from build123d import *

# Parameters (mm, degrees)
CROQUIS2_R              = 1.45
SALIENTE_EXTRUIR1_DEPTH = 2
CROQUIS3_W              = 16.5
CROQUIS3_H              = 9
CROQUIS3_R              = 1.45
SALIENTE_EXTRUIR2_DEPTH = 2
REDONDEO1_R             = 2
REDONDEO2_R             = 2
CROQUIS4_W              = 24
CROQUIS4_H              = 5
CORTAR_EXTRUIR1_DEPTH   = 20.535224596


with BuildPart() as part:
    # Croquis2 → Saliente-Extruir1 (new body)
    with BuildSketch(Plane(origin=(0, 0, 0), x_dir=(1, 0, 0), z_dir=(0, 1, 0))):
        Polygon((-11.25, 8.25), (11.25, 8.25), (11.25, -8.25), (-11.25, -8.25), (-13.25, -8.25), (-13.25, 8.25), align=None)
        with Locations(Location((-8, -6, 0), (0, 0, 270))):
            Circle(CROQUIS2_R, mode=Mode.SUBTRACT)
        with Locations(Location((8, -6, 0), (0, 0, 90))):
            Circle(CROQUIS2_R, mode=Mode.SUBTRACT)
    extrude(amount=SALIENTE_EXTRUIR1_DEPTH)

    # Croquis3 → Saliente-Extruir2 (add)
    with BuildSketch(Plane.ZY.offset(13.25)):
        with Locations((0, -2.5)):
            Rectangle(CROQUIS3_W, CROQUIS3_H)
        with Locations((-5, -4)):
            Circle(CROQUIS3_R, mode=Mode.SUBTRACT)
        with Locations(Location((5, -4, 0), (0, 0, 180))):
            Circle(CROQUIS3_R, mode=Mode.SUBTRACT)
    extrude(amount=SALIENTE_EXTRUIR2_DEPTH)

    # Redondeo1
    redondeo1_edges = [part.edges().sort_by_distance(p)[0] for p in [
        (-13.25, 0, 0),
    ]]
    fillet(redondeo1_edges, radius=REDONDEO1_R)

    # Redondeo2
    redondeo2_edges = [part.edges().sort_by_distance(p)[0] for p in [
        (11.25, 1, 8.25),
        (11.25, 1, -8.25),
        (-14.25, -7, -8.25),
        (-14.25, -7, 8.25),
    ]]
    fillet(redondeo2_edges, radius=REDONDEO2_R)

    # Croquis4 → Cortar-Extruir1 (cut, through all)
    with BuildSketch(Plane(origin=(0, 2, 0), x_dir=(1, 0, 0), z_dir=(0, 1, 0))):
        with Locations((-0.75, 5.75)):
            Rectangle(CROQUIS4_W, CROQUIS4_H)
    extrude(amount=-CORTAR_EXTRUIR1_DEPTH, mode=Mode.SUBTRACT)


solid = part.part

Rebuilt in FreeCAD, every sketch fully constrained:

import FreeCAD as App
import Part
import Sketcher

V = App.Vector


def edges_at(feature, points):
    """Names of the edges that pass closest to the given points."""
    edges = feature.Shape.Edges
    near = lambda p: min(range(len(edges)), key=lambda i: edges[i].distToShape(Part.Vertex(*p))[0])
    return sorted({f"Edge{near(p) + 1}" for p in points})


def add_polygon(sketch, points):
    """Adds a closed chain of lines whose ends are joined by coincident constraints."""
    first, n = sketch.GeometryCount, len(points)
    for a, b in zip(points, points[1:] + points[:1]):
        sketch.addGeometry(Part.LineSegment(App.Vector(*a, 0), App.Vector(*b, 0)), False)
    for i in range(n):
        sketch.addConstraint(Sketcher.Constraint("Coincident", first + i, 2, first + (i + 1) % n, 1))

doc = App.newDocument("Part")
body = doc.addObject("PartDesign::Body", "Body")

sketch1 = doc.addObject("Sketcher::SketchObject", "Sketch")
body.addObject(sketch1)
sketch1.AttachmentSupport = (doc.XZ_Plane, [""])
sketch1.MapMode = "FlatFace"
add_polygon(sketch1, [(11.2, -8.2), (-13.2, -8.2), (-13.2, 8.2), (11.2, 8.2)])
sketch1.addGeometry(Part.Circle(V(8, 6, 0), V(0, 0, 1), 1.4), False)
sketch1.addGeometry(Part.Circle(V(-8, 6, 0), V(0, 0, 1), 1.4), False)
sketch1.addConstraint([
    Sketcher.Constraint("Horizontal", 0),
    Sketcher.Constraint("Vertical", 1),
    Sketcher.Constraint("Horizontal", 2),
    Sketcher.Constraint("Vertical", 3),
    Sketcher.Constraint("Equal", 4, 5),
    Sketcher.Constraint("Symmetric", 4, 3, 5, 3, -2),
    Sketcher.Constraint("Diameter", 4, 2.9),
    Sketcher.Constraint("DistanceX", 0, 2, 0, 1, 24.5),
    Sketcher.Constraint("DistanceY", 1, 1, 1, 2, 16.5),
    Sketcher.Constraint("DistanceX", -1, 1, 4, 3, 8.0),
    Sketcher.Constraint("DistanceY", -1, 1, 4, 3, 6.0),
    Sketcher.Constraint("DistanceX", 0, 2, -1, 1, 13.25),
    Sketcher.Constraint("DistanceY", 0, 2, -1, 1, 8.25),
])
pad1 = doc.addObject("PartDesign::Pad", "Pad")
body.addObject(pad1)
pad1.Profile = sketch1
pad1.Length = 2
pad1.Reversed = True

sketch2 = doc.addObject("Sketcher::SketchObject", "Sketch001")
body.addObject(sketch2)
sketch2.AttachmentSupport = (doc.YZ_Plane, [""])
sketch2.MapMode = "FlatFace"
sketch2.AttachmentOffset = App.Placement(V(0, 0, -13.25), App.Rotation())
add_polygon(sketch2, [(2, -8.2), (-7, -8.2), (-7, 8.2), (2, 8.2)])
sketch2.addGeometry(Part.Circle(V(-4, -5, 0), V(0, 0, 1), 1.4), False)
sketch2.addGeometry(Part.Circle(V(-4, 5, 0), V(0, 0, 1), 1.4), False)
sketch2.addConstraint([
    Sketcher.Constraint("Horizontal", 0),
    Sketcher.Constraint("Vertical", 1),
    Sketcher.Constraint("Horizontal", 2),
    Sketcher.Constraint("Vertical", 3),
    Sketcher.Constraint("Equal", 4, 5),
    Sketcher.Constraint("Symmetric", 4, 3, 5, 3, -1),
    Sketcher.Constraint("Diameter", 4, 2.9),
    Sketcher.Constraint("DistanceX", 0, 2, 0, 1, 9.0),
    Sketcher.Constraint("DistanceY", 1, 1, 1, 2, 16.5),
    Sketcher.Constraint("DistanceX", 4, 3, -1, 1, 4.0),
    Sketcher.Constraint("DistanceY", 4, 3, -1, 1, 5.0),
    Sketcher.Constraint("DistanceX", 0, 2, -1, 1, 7.0),
    Sketcher.Constraint("DistanceY", 0, 2, -1, 1, 8.25),
])
pad2 = doc.addObject("PartDesign::Pad", "Pad001")
body.addObject(pad2)
pad2.Profile = sketch2
pad2.Length = 2
pad2.Reversed = True
doc.recompute()

fillet = doc.addObject("PartDesign::Fillet", "Fillet")
body.addObject(fillet)
fillet.Base = (pad2, edges_at(pad2, [(-13.25, 0, 0)]))
fillet.Radius = 2
doc.recompute()

fillet2 = doc.addObject("PartDesign::Fillet", "Fillet001")
body.addObject(fillet2)
fillet2.Base = (fillet, edges_at(fillet, [
    (11.25, 1, 8.25),
    (11.25, 1, -8.25),
    (-14.25, -7, -8.25),
    (-14.25, -7, 8.25),
]))
fillet2.Radius = 2

sketch3 = doc.addObject("Sketcher::SketchObject", "Sketch002")
body.addObject(sketch3)
sketch3.AttachmentSupport = (doc.XZ_Plane, [""])
sketch3.MapMode = "FlatFace"
sketch3.AttachmentOffset = App.Placement(V(0, 0, -2), App.Rotation())
add_polygon(sketch3, [(-13, -8), (-13, -3), (11, -3), (11, -8)])
sketch3.addConstraint([
    Sketcher.Constraint("Vertical", 0),
    Sketcher.Constraint("Horizontal", 1),
    Sketcher.Constraint("Vertical", 2),
    Sketcher.Constraint("Horizontal", 3),
    Sketcher.Constraint("DistanceX", 1, 1, 1, 2, 24.0),
    Sketcher.Constraint("DistanceY", 0, 1, 0, 2, 5.0),
    Sketcher.Constraint("DistanceX", 0, 2, -1, 1, 12.75),
    Sketcher.Constraint("DistanceY", 0, 2, -1, 1, 3.25),
])
pocket1 = doc.addObject("PartDesign::Pocket", "Pocket")
body.addObject(pocket1)
pocket1.Profile = sketch3
pocket1.Type = "ThroughAll"
pocket1.Reversed = True

doc.recompute()
